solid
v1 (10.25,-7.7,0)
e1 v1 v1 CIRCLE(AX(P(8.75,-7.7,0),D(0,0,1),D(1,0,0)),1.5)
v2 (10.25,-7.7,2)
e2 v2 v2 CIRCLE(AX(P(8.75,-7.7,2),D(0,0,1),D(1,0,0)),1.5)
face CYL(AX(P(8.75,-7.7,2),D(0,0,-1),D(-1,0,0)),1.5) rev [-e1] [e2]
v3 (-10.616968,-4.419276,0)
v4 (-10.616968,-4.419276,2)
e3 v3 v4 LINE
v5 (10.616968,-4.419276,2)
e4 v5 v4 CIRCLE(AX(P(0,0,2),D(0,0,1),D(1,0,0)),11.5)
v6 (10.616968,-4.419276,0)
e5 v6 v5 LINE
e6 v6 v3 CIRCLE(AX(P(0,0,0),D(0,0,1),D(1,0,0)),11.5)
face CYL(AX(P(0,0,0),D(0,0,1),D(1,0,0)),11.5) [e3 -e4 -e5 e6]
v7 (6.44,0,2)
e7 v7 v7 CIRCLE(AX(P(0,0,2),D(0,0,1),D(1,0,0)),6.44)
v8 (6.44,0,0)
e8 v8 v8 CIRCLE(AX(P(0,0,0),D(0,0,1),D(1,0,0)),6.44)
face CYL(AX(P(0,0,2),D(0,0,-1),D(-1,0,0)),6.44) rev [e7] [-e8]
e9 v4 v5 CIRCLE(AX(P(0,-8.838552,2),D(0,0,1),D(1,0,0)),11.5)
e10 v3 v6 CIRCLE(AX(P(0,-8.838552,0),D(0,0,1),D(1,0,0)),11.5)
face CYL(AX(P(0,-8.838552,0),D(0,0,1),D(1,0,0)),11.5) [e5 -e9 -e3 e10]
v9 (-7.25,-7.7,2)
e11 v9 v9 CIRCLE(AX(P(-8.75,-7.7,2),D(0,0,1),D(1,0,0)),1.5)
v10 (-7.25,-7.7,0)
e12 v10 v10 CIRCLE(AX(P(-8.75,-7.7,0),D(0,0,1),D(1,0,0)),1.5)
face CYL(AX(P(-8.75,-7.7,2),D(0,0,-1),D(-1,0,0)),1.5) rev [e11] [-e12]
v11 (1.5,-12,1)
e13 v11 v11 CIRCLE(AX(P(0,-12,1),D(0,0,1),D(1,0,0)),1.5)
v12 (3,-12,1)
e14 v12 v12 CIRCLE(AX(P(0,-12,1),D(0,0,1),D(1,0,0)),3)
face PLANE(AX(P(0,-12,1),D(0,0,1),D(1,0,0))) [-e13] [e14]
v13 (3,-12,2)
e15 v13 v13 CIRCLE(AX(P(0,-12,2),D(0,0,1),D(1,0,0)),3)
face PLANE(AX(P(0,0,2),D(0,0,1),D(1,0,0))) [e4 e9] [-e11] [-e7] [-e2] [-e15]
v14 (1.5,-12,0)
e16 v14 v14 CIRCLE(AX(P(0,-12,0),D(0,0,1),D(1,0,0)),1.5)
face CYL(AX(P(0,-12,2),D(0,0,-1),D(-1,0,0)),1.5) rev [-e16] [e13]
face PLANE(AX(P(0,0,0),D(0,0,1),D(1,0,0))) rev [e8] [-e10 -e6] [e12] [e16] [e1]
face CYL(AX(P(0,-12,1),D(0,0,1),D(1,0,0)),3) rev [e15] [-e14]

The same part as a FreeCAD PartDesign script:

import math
import FreeCAD as App
import Part
import Sketcher

doc = App.newDocument("Part")
body = doc.addObject("PartDesign::Body", "Body")

# Sketch on XY plane
sketch1 = body.newObject("Sketcher::SketchObject", "Sketch")
sketch1.AttachmentSupport = (doc.getObject("XY_Plane"), [""])
sketch1.MapMode = "FlatFace"
sketch1.addGeometry([
    Part.LineSegment(App.Vector(-12, 12, 0), App.Vector(-12, -21.9, 0)),  # 0
    Part.LineSegment(App.Vector(-12, -21.9, 0), App.Vector(12, -21.9, 0)),  # 1
    Part.LineSegment(App.Vector(12, -21.9, 0), App.Vector(12, 12, 0)),  # 2
    Part.LineSegment(App.Vector(12, 12, 0), App.Vector(-12, 12, 0)),  # 3
    Part.Circle(App.Vector(-8.8, -7.7, 0), App.Vector(0, 0, 1), 1.5),  # 4
    Part.Circle(App.Vector(0, -12, 0), App.Vector(0, 0, 1), 1.5),  # 5
    Part.Circle(App.Vector(8.8, -7.7, 0), App.Vector(0, 0, 1), 1.5),  # 6
    Part.Circle(App.Vector(0, 0, 0), App.Vector(0, 0, 1), 6.4),  # 7
], False)
sketch1.addConstraint([
    Sketcher.Constraint("Coincident", 0, 2, 1, 1),
    Sketcher.Constraint("Coincident", 1, 2, 2, 1),
    Sketcher.Constraint("Coincident", 2, 2, 3, 1),
    Sketcher.Constraint("Coincident", 3, 2, 0, 1),
    Sketcher.Constraint("Vertical", 0),
    Sketcher.Constraint("Horizontal", 1),
    Sketcher.Constraint("Vertical", 2),
    Sketcher.Constraint("Horizontal", 3),
    Sketcher.Constraint("Coincident", 7, 3, -1, 1),
    Sketcher.Constraint("Equal", 4, 5),
    Sketcher.Constraint("Equal", 5, 6),
    Sketcher.Constraint("Symmetric", 4, 3, 6, 3, -2),
    Sketcher.Constraint("PointOnObject", 5, 3, -2),
    Sketcher.Constraint("Diameter", 4, 3.0),
    Sketcher.Constraint("Diameter", 7, 12.88),
    Sketcher.Constraint("DistanceX", 1, 1, 1, 2, 24.0),
    Sketcher.Constraint("DistanceY", 5, 3, -1, 1, 12.0),
    Sketcher.Constraint("DistanceX", 0, 2, -1, 1, 12.0),
    Sketcher.Constraint("DistanceY", -1, 1, 2, 2, 12.0),
    Sketcher.Constraint("DistanceY", 4, 3, -1, 1, 7.7),
    Sketcher.Constraint("DistanceX", 4, 3, 6, 3, 17.5),
    Sketcher.Constraint("DistanceY", 0, 2, 0, 1, 33.9323),
])
pad1 = body.newObject("PartDesign::Pad", "Pad")
pad1.Profile = sketch1
pad1.Length = 2

# Sketch on XY plane
sketch2 = body.newObject("Sketcher::SketchObject", "Sketch001")
sketch2.AttachmentSupport = (doc.getObject("XY_Plane"), [""])
sketch2.MapMode = "FlatFace"
sketch2.AttachmentOffset = App.Placement(App.Vector(0, 0, 2), App.Rotation())
sketch2.addGeometry([
    Part.Circle(App.Vector(0, -12, 0), App.Vector(0, 0, 1), 3),
    Part.Circle(App.Vector(0, -12, 0), App.Vector(0, 0, 1), 1.5),
], False)
sketch2.addConstraint([
    Sketcher.Constraint("Coincident", 1, 3, 0, 3),
    Sketcher.Constraint("PointOnObject", 0, 3, -2),
    Sketcher.Constraint("Diameter", 0, 6.0),
    Sketcher.Constraint("Diameter", 1, 3.0),
    Sketcher.Constraint("DistanceY", 0, 3, -1, 1, 12.0),
])
pocket1 = body.newObject("PartDesign::Pocket", "Pocket")
pocket1.Profile = sketch2
pocket1.Length = 1

# Sketch on XY plane
sketch3 = body.newObject("Sketcher::SketchObject", "Sketch002")
sketch3.AttachmentSupport = (doc.getObject("XY_Plane"), [""])
sketch3.MapMode = "FlatFace"
sketch3.AttachmentOffset = App.Placement(App.Vector(0, 0, 2), App.Rotation())
sketch3.addGeometry([
    Part.LineSegment(App.Vector(-12, 12, 0), App.Vector(-12, -22, 0)),  # 0
    Part.LineSegment(App.Vector(-12, -22, 0), App.Vector(12, -22, 0)),  # 1
    Part.LineSegment(App.Vector(12, -22, 0), App.Vector(12, 12, 0)),  # 2
    Part.LineSegment(App.Vector(12, 12, 0), App.Vector(-12, 12, 0)),  # 3
    Part.ArcOfCircle(Part.Circle(App.Vector(0, -9, 0), App.Vector(0, 0, 1), 12), math.radians(157), math.radians(383)),  # 4
    Part.ArcOfCircle(Part.Circle(App.Vector(0, 0, 0), App.Vector(0, 0, 1), 12), math.radians(-23), math.radians(203)),  # 5
], False)
sketch3.addConstraint([
    Sketcher.Constraint("Coincident", 0, 2, 1, 1),
    Sketcher.Constraint("Coincident", 1, 2, 2, 1),
    Sketcher.Constraint("Coincident", 2, 2, 3, 1),
    Sketcher.Constraint("Coincident", 3, 2, 0, 1),
    Sketcher.Constraint("Coincident", 4, 1, 5, 2),
    Sketcher.Constraint("Coincident", 5, 1, 4, 2),
    Sketcher.Constraint("Vertical", 0),
    Sketcher.Constraint("Horizontal", 1),
    Sketcher.Constraint("Vertical", 2),
    Sketcher.Constraint("Horizontal", 3),
    Sketcher.Constraint("Coincident", 5, 3, -1, 1),
    Sketcher.Constraint("Equal", 4, 5),
    Sketcher.Constraint("PointOnObject", 4, 3, -2),
    Sketcher.Constraint("Radius", 4, 11.5),
    Sketcher.Constraint("DistanceX", 1, 1, 1, 2, 24.0),
    Sketcher.Constraint("DistanceX", 0, 2, -1, 1, 12.0),
    Sketcher.Constraint("DistanceY", -1, 1, 2, 2, 12.0),
    Sketcher.Constraint("DistanceY", 0, 2, 0, 1, 33.9323),
    Sketcher.Constraint("DistanceY", 4, 3, -1, 1, 8.838552),
])
pocket2 = body.newObject("PartDesign::Pocket", "Pocket001")
pocket2.Profile = sketch3
pocket2.Type = "ThroughAll"

doc.recompute()
